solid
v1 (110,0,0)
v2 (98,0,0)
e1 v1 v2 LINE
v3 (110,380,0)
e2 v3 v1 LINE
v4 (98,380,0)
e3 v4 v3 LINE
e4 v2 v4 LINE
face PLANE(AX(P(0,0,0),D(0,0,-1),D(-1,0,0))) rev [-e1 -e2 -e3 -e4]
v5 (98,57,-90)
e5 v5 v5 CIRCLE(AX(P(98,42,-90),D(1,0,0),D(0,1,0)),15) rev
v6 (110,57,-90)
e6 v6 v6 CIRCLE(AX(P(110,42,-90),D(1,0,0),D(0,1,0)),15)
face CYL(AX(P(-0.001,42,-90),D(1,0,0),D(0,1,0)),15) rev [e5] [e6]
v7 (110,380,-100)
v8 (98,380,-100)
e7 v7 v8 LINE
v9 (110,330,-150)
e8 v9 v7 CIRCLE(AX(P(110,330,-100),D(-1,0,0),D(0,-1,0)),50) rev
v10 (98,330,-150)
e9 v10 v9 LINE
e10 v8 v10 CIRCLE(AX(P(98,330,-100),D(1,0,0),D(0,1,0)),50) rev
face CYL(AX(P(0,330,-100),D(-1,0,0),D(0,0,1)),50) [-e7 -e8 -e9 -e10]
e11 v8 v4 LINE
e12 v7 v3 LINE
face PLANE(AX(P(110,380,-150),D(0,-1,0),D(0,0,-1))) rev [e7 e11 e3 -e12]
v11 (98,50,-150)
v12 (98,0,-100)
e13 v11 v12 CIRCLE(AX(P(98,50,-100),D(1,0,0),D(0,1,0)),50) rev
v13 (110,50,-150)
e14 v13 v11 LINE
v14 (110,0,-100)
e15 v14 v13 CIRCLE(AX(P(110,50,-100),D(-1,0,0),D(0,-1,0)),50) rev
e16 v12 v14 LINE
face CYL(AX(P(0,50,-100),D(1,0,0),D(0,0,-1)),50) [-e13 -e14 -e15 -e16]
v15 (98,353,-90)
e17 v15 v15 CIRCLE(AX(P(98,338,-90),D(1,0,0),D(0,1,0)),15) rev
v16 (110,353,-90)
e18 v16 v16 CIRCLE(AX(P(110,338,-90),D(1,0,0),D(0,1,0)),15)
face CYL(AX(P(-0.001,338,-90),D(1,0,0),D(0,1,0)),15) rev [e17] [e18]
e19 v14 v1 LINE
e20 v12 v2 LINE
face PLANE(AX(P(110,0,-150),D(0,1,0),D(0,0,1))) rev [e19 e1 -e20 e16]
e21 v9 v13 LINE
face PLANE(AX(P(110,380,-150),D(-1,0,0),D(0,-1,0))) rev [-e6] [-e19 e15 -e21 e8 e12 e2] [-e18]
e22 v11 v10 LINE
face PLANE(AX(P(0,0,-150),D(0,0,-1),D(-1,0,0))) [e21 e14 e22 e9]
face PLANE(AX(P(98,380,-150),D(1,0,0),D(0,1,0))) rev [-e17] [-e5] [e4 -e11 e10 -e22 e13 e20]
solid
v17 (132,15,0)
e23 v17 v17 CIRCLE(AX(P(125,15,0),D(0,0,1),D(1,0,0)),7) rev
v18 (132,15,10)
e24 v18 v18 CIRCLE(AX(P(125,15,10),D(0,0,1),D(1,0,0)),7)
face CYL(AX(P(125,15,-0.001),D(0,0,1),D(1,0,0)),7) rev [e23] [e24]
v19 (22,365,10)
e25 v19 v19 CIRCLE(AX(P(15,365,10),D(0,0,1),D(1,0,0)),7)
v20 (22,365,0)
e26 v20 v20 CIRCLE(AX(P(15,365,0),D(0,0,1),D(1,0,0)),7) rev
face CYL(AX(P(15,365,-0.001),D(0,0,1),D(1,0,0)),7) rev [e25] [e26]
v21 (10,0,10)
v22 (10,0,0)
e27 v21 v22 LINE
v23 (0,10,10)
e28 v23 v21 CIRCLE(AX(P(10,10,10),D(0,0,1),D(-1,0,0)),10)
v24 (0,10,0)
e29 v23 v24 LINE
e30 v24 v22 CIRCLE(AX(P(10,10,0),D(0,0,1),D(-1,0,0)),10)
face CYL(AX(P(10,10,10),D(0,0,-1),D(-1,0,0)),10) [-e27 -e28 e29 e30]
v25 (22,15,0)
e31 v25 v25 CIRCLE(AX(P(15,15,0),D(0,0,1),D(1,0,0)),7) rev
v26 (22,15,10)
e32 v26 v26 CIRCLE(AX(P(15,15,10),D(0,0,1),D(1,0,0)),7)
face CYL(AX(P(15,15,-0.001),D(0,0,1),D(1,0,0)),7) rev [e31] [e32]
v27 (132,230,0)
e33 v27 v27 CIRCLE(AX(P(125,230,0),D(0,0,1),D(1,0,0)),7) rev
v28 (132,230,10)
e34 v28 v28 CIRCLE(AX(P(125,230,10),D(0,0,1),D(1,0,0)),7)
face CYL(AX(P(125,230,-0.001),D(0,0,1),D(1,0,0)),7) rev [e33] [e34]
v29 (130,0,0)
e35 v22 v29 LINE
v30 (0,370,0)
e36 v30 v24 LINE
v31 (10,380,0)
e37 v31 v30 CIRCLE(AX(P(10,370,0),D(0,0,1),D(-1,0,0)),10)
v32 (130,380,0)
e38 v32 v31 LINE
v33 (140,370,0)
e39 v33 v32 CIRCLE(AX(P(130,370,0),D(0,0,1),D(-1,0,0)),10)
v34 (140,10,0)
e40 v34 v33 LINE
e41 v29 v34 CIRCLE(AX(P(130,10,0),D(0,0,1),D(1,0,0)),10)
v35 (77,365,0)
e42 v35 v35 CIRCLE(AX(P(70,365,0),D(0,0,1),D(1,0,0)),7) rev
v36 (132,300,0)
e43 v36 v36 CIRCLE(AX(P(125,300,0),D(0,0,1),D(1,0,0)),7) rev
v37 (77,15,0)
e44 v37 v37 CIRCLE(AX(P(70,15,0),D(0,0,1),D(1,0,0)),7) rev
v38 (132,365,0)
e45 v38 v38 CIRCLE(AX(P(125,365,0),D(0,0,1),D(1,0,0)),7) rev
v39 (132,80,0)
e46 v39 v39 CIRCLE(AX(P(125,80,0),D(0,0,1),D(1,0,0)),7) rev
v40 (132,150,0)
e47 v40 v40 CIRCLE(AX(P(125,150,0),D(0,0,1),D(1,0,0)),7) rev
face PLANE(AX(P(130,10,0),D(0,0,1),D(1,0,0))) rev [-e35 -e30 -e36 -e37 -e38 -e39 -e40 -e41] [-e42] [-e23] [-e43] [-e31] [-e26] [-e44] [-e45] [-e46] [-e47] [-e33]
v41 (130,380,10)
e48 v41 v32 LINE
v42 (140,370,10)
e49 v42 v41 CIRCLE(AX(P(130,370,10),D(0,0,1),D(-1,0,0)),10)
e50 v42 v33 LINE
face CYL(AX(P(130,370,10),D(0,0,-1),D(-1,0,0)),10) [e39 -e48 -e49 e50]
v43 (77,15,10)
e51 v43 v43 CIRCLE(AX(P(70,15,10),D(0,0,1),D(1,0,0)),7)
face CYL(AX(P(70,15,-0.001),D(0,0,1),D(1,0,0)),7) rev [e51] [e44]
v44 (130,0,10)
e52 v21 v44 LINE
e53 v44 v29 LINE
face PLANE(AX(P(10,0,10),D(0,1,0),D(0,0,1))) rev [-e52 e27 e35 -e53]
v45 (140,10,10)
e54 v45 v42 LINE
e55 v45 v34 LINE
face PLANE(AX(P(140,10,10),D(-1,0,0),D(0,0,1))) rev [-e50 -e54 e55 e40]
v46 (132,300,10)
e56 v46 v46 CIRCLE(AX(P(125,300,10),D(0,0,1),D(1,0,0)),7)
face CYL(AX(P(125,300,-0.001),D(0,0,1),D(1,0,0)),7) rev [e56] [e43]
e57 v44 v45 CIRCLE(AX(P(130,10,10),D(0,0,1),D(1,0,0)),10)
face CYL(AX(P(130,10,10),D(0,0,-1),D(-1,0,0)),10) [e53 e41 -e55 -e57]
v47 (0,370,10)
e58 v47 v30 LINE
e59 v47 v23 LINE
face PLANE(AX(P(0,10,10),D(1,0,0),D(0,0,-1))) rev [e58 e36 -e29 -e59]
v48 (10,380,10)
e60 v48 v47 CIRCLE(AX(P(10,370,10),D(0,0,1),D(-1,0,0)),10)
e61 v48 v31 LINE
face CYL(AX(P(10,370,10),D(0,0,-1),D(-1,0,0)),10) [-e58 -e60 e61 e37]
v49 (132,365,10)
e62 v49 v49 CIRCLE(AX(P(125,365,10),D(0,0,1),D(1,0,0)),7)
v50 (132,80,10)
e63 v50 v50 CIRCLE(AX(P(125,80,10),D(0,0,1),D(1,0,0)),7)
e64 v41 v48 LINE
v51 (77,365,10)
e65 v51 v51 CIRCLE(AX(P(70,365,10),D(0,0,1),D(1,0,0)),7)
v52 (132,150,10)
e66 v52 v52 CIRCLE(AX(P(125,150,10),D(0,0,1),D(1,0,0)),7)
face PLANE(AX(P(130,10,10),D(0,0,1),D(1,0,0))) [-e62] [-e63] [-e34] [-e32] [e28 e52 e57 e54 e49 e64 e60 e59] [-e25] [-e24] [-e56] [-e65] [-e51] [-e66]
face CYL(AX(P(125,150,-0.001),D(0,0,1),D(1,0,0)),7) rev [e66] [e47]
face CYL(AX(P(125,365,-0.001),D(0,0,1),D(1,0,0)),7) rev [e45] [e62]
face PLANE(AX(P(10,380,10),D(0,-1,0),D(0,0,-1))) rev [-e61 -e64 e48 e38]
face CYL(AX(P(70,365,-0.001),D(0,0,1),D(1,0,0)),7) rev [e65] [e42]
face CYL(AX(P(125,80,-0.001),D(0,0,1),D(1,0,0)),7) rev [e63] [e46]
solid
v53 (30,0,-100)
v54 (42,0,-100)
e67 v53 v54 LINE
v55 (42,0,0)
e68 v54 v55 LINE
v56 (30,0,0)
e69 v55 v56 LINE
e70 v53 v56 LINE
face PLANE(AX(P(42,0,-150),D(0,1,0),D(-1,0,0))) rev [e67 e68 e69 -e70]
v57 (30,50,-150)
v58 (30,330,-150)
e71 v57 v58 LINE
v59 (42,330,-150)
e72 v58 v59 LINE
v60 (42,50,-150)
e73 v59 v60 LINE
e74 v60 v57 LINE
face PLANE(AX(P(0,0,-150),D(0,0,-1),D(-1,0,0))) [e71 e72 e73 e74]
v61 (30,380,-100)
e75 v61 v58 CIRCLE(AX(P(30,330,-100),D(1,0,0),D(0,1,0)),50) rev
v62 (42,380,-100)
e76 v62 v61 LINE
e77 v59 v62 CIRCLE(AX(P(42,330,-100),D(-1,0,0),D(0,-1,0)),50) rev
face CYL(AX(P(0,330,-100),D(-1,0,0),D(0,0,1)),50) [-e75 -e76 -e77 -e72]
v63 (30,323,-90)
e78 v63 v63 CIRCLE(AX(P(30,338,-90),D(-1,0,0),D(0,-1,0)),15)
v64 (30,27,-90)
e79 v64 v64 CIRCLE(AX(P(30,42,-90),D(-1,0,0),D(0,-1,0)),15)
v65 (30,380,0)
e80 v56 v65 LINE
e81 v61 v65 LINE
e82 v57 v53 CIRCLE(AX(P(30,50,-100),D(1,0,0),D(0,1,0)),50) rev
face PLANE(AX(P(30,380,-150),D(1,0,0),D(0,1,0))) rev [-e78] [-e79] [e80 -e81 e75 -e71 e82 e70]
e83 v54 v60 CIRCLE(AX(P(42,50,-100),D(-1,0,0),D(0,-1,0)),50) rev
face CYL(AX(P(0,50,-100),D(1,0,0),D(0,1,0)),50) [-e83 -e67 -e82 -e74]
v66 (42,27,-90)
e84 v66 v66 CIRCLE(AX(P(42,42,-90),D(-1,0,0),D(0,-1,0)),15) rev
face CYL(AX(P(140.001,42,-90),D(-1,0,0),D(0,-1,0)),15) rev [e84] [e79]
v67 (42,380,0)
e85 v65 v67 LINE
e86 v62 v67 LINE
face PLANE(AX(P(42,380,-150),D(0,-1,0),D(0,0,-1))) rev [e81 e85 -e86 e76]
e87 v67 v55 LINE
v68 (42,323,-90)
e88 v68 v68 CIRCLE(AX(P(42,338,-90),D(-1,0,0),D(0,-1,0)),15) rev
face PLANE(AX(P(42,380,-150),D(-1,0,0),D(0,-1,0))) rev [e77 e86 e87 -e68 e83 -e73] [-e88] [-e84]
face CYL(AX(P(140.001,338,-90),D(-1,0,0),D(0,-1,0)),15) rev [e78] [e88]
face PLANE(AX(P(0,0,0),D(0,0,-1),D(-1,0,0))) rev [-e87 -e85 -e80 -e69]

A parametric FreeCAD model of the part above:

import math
import FreeCAD as App
import Part
import Sketcher
from FreeCAD import Vector


def edges_at(feature, points):
    """Names of the edges that pass closest to the given points."""
    edges = feature.Shape.Edges
    near = lambda p: min(range(len(edges)), key=lambda i: edges[i].distToShape(Part.Vertex(*p))[0])
    return sorted({f"Edge{near(p) + 1}" for p in points})

doc = App.newDocument("Part")
body = doc.addObject("PartDesign::Body", "Body")

# Sketch on XY plane
sketch1 = body.newObject("Sketcher::SketchObject", "Sketch")
sketch1.AttachmentSupport = (doc.getObject("XY_Plane"), [""])
sketch1.MapMode = "FlatFace"
sketch1.addGeometry([
    Part.LineSegment(Vector(10, 0, 0), Vector(130, 0, 0)),  # 0
    Part.ArcOfCircle(Part.Circle(Vector(130, 10, 0), Vector(0, 0, 1), 10), math.radians(-90), math.radians(0)),  # 1
    Part.LineSegment(Vector(140, 10, 0), Vector(140, 370, 0)),  # 2
    Part.ArcOfCircle(Part.Circle(Vector(130, 370, 0), Vector(0, 0, 1), 10), math.radians(0), math.radians(90)),  # 3
    Part.LineSegment(Vector(130, 380, 0), Vector(10, 380, 0)),  # 4
    Part.ArcOfCircle(Part.Circle(Vector(10, 370, 0), Vector(0, 0, 1), 10), math.radians(90), math.radians(180)),  # 5
    Part.LineSegment(Vector(0, 370, 0), Vector(0, 10, 0)),  # 6
    Part.ArcOfCircle(Part.Circle(Vector(10, 10, 0), Vector(0, 0, 1), 10), math.radians(180), math.radians(270)),  # 7
], False)
sketch1.addConstraint([
    Sketcher.Constraint("Tangent", 0, 2, 1, 1),
    Sketcher.Constraint("Tangent", 1, 2, 2, 1),
    Sketcher.Constraint("Tangent", 2, 2, 3, 1),
    Sketcher.Constraint("Tangent", 3, 2, 4, 1),
    Sketcher.Constraint("Tangent", 4, 2, 5, 1),
    Sketcher.Constraint("Tangent", 5, 2, 6, 1),
    Sketcher.Constraint("Tangent", 6, 2, 7, 1),
    Sketcher.Constraint("Tangent", 7, 2, 0, 1),
    Sketcher.Constraint("Horizontal", 0),
    Sketcher.Constraint("Vertical", 2),
    Sketcher.Constraint("Horizontal", 4),
    Sketcher.Constraint("Vertical", 6),
    Sketcher.Constraint("Equal", 1, 3),
    Sketcher.Constraint("Equal", 3, 5),
    Sketcher.Constraint("Equal", 5, 7),
    Sketcher.Constraint("PointOnObject", 0, 2, -1),
    Sketcher.Constraint("PointOnObject", 5, 2, -2),
    Sketcher.Constraint("Radius", 1, 10.0),
    Sketcher.Constraint("DistanceX", 0, 1, 0, 2, 120.0),
    Sketcher.Constraint("DistanceY", 2, 1, 2, 2, 360.0),
])
pad1 = body.newObject("PartDesign::Pad", "Pad")
pad1.Profile = sketch1
pad1.Length = 10

# Sketch on XY plane
sketch2 = body.newObject("Sketcher::SketchObject", "Sketch001")
sketch2.AttachmentSupport = (doc.getObject("XY_Plane"), [""])
sketch2.MapMode = "FlatFace"
sketch2.AttachmentOffset = App.Placement(Vector(0, 0, 10), App.Rotation())
sketch2.addGeometry(Part.Circle(Vector(15, 365, 0), Vector(0, 0, 1), 7), False)
sketch2.addConstraint([
    Sketcher.Constraint("Diameter", 0, 14.0),
    Sketcher.Constraint("DistanceX", -1, 1, 0, 3, 15.0),
    Sketcher.Constraint("DistanceY", -1, 1, 0, 3, 365.0),
])
pocket1 = body.newObject("PartDesign::Pocket", "Pocket")
pocket1.Profile = sketch2
pocket1.Type = "UpToFirst"

# Sketch on XY plane
sketch3 = body.newObject("Sketcher::SketchObject", "Sketch002")
sketch3.AttachmentSupport = (doc.getObject("XY_Plane"), [""])
sketch3.MapMode = "FlatFace"
sketch3.AttachmentOffset = App.Placement(Vector(0, 0, 10), App.Rotation())
sketch3.addGeometry(Part.Circle(Vector(125, 365, 0), Vector(0, 0, 1), 7), False)
sketch3.addConstraint([
    Sketcher.Constraint("Diameter", 0, 14.0),
    Sketcher.Constraint("DistanceX", -1, 1, 0, 3, 125.0),
    Sketcher.Constraint("DistanceY", -1, 1, 0, 3, 365.0),
])
pocket2 = body.newObject("PartDesign::Pocket", "Pocket001")
pocket2.Profile = sketch3
pocket2.Type = "UpToFirst"

# Sketch on XY plane
sketch4 = body.newObject("Sketcher::SketchObject", "Sketch003")
sketch4.AttachmentSupport = (doc.getObject("XY_Plane"), [""])
sketch4.MapMode = "FlatFace"
sketch4.AttachmentOffset = App.Placement(Vector(0, 0, 10), App.Rotation())
sketch4.addGeometry(Part.Circle(Vector(15, 15, 0), Vector(0, 0, 1), 7), False)
sketch4.addConstraint([
    Sketcher.Constraint("Diameter", 0, 14.0),
    Sketcher.Constraint("DistanceX", -1, 1, 0, 3, 15.0),
    Sketcher.Constraint("DistanceY", -1, 1, 0, 3, 15.0),
])
pocket3 = body.newObject("PartDesign::Pocket", "Pocket002")
pocket3.Profile = sketch4
pocket3.Type = "UpToFirst"

# Sketch on XY plane
sketch5 = body.newObject("Sketcher::SketchObject", "Sketch004")
sketch5.AttachmentSupport = (doc.getObject("XY_Plane"), [""])
sketch5.MapMode = "FlatFace"
sketch5.AttachmentOffset = App.Placement(Vector(0, 0, 10), App.Rotation())
sketch5.addGeometry(Part.Circle(Vector(125, 15, 0), Vector(0, 0, 1), 7), False)
sketch5.addConstraint([
    Sketcher.Constraint("Diameter", 0, 14.0),
    Sketcher.Constraint("DistanceX", -1, 1, 0, 3, 125.0),
    Sketcher.Constraint("DistanceY", -1, 1, 0, 3, 15.0),
])
pocket4 = body.newObject("PartDesign::Pocket", "Pocket003")
pocket4.Profile = sketch5
pocket4.Type = "UpToFirst"

# Sketch on XY plane
sketch6 = body.newObject("Sketcher::SketchObject", "Sketch005")
sketch6.AttachmentSupport = (doc.getObject("XY_Plane"), [""])
sketch6.MapMode = "FlatFace"
sketch6.AttachmentOffset = App.Placement(Vector(0, 0, 10), App.Rotation())
sketch6.addGeometry(Part.Circle(Vector(70, 365, 0), Vector(0, 0, 1), 7), False)
sketch6.addConstraint([
    Sketcher.Constraint("Diameter", 0, 14.0),
    Sketcher.Constraint("DistanceX", -1, 1, 0, 3, 70.0),
    Sketcher.Constraint("DistanceY", -1, 1, 0, 3, 365.0),
])
pocket5 = body.newObject("PartDesign::Pocket", "Pocket004")
pocket5.Profile = sketch6
pocket5.Type = "UpToFirst"

# Sketch on XY plane
sketch7 = body.newObject("Sketcher::SketchObject", "Sketch006")
sketch7.AttachmentSupport = (doc.getObject("XY_Plane"), [""])
sketch7.MapMode = "FlatFace"
sketch7.AttachmentOffset = App.Placement(Vector(0, 0, 10), App.Rotation())
sketch7.addGeometry(Part.Circle(Vector(70, 15, 0), Vector(0, 0, 1), 7), False)
sketch7.addConstraint([
    Sketcher.Constraint("Diameter", 0, 14.0),
    Sketcher.Constraint("DistanceX", -1, 1, 0, 3, 70.0),
    Sketcher.Constraint("DistanceY", -1, 1, 0, 3, 15.0),
])
pocket6 = body.newObject("PartDesign::Pocket", "Pocket005")
pocket6.Profile = sketch7
pocket6.Type = "UpToFirst"

# Sketch on XY plane
sketch8 = body.newObject("Sketcher::SketchObject", "Sketch007")
sketch8.AttachmentSupport = (doc.getObject("XY_Plane"), [""])
sketch8.MapMode = "FlatFace"
sketch8.AttachmentOffset = App.Placement(Vector(0, 0, 10), App.Rotation())
sketch8.addGeometry(Part.Circle(Vector(125, 300, 0), Vector(0, 0, 1), 7), False)
sketch8.addConstraint([
    Sketcher.Constraint("Diameter", 0, 14.0),
    Sketcher.Constraint("DistanceX", -1, 1, 0, 3, 125.0),
    Sketcher.Constraint("DistanceY", -1, 1, 0, 3, 300.0),
])
pocket7 = body.newObject("PartDesign::Pocket", "Pocket006")
pocket7.Profile = sketch8
pocket7.Type = "UpToFirst"

# Sketch on XY plane
sketch9 = body.newObject("Sketcher::SketchObject", "Sketch008")
sketch9.AttachmentSupport = (doc.getObject("XY_Plane"), [""])
sketch9.MapMode = "FlatFace"
sketch9.AttachmentOffset = App.Placement(Vector(0, 0, 10), App.Rotation())
sketch9.addGeometry(Part.Circle(Vector(125, 80, 0), Vector(0, 0, 1), 7), False)
sketch9.addConstraint([
    Sketcher.Constraint("Diameter", 0, 14.0),
    Sketcher.Constraint("DistanceX", -1, 1, 0, 3, 125.0),
    Sketcher.Constraint("DistanceY", -1, 1, 0, 3, 80.0),
])
pocket8 = body.newObject("PartDesign::Pocket", "Pocket007")
pocket8.Profile = sketch9
pocket8.Type = "UpToFirst"

# Sketch on XY plane
sketch10 = body.newObject("Sketcher::SketchObject", "Sketch009")
sketch10.AttachmentSupport = (doc.getObject("XY_Plane"), [""])
sketch10.MapMode = "FlatFace"
sketch10.AttachmentOffset = App.Placement(Vector(0, 0, 10), App.Rotation())
sketch10.addGeometry(Part.Circle(Vector(125, 230, 0), Vector(0, 0, 1), 7), False)
sketch10.addConstraint([
    Sketcher.Constraint("Diameter", 0, 14.0),
    Sketcher.Constraint("DistanceX", -1, 1, 0, 3, 125.0),
    Sketcher.Constraint("DistanceY", -1, 1, 0, 3, 230.0),
])
pocket9 = body.newObject("PartDesign::Pocket", "Pocket008")
pocket9.Profile = sketch10
pocket9.Type = "UpToFirst"

# Sketch on XY plane
sketch11 = body.newObject("Sketcher::SketchObject", "Sketch010")
sketch11.AttachmentSupport = (doc.getObject("XY_Plane"), [""])
sketch11.MapMode = "FlatFace"
sketch11.AttachmentOffset = App.Placement(Vector(0, 0, 10), App.Rotation())
sketch11.addGeometry(Part.Circle(Vector(125, 150, 0), Vector(0, 0, 1), 7), False)
sketch11.addConstraint([
    Sketcher.Constraint("Diameter", 0, 14.0),
    Sketcher.Constraint("DistanceX", -1, 1, 0, 3, 125.0),
    Sketcher.Constraint("DistanceY", -1, 1, 0, 3, 150.0),
])
pocket10 = body.newObject("PartDesign::Pocket", "Pocket009")
pocket10.Profile = sketch11
pocket10.Type = "UpToFirst"
body2 = doc.addObject("PartDesign::Body", "Body001")

# Sketch on XY plane
sketch12 = body2.newObject("Sketcher::SketchObject", "Sketch011")
sketch12.AttachmentSupport = (doc.getObject("XY_Plane001"), [""])
sketch12.MapMode = "FlatFace"
sketch12.addGeometry([
    Part.LineSegment(Vector(110, 380, 0), Vector(110, 0, 0)),
    Part.LineSegment(Vector(110, 0, 0), Vector(98, 0, 0)),
    Part.LineSegment(Vector(98, 0, 0), Vector(98, 380, 0)),
    Part.LineSegment(Vector(98, 380, 0), Vector(110, 380, 0)),
], False)
sketch12.addConstraint([
    Sketcher.Constraint("Coincident", 0, 2, 1, 1),
    Sketcher.Constraint("Coincident", 1, 2, 2, 1),
    Sketcher.Constraint("Coincident", 2, 2, 3, 1),
    Sketcher.Constraint("Coincident", 3, 2, 0, 1),
    Sketcher.Constraint("Vertical", 0),
    Sketcher.Constraint("Horizontal", 1),
    Sketcher.Constraint("Vertical", 2),
    Sketcher.Constraint("Horizontal", 3),
    Sketcher.Constraint("PointOnObject", 0, 2, -1),
    Sketcher.Constraint("DistanceX", 1, 2, 1, 1, 12.0),
    Sketcher.Constraint("DistanceY", 0, 2, 0, 1, 380.0),
    Sketcher.Constraint("DistanceX", -1, 1, 0, 2, 110.0),
])
pad2 = body2.newObject("PartDesign::Pad", "Pad001")
pad2.Profile = sketch12
pad2.Length = 150
pad2.Reversed = True
doc.recompute()

fillet = body2.newObject("PartDesign::Fillet", "Fillet")
fillet.Base = (pad2, edges_at(pad2, [(104, 380, -150), (104, 0, -150)]))
fillet.Radius = 50

# Sketch on YZ plane
sketch13 = body2.newObject("Sketcher::SketchObject", "Sketch012")
sketch13.AttachmentSupport = (doc.getObject("YZ_Plane001"), [""])
sketch13.MapMode = "FlatFace"
sketch13.AttachmentOffset = App.Placement(Vector(0, 0, 110), App.Rotation())
sketch13.addGeometry([
    Part.Circle(Vector(338, -90, 0), Vector(0, 0, 1), 15),
    Part.Circle(Vector(42, -90, 0), Vector(0, 0, 1), 15),
], False)
sketch13.addConstraint([
    Sketcher.Constraint("Equal", 0, 1),
    Sketcher.Constraint("Horizontal", 0, 3, 1, 3),
    Sketcher.Constraint("Diameter", 0, 30.0),
    Sketcher.Constraint("DistanceX", -1, 1, 0, 3, 338.0),
    Sketcher.Constraint("DistanceY", 0, 3, -1, 1, 90.0),
    Sketcher.Constraint("DistanceX", -1, 1, 1, 3, 42.0),
])
pocket11 = body2.newObject("PartDesign::Pocket", "Pocket010")
pocket11.Profile = sketch13
pocket11.Length = 12
body3 = doc.addObject("PartDesign::Body", "Body002")

# Sketch on XY plane
sketch14 = body3.newObject("Sketcher::SketchObject", "Sketch013")
sketch14.AttachmentSupport = (doc.getObject("XY_Plane002"), [""])
sketch14.MapMode = "FlatFace"
sketch14.addGeometry([
    Part.LineSegment(Vector(42, 380, 0), Vector(42, 0, 0)),
    Part.LineSegment(Vector(42, 0, 0), Vector(30, 0, 0)),
    Part.LineSegment(Vector(30, 0, 0), Vector(30, 380, 0)),
    Part.LineSegment(Vector(30, 380, 0), Vector(42, 380, 0)),
], False)
sketch14.addConstraint([
    Sketcher.Constraint("Coincident", 0, 2, 1, 1),
    Sketcher.Constraint("Coincident", 1, 2, 2, 1),
    Sketcher.Constraint("Coincident", 2, 2, 3, 1),
    Sketcher.Constraint("Coincident", 3, 2, 0, 1),
    Sketcher.Constraint("Vertical", 0),
    Sketcher.Constraint("Horizontal", 1),
    Sketcher.Constraint("Vertical", 2),
    Sketcher.Constraint("Horizontal", 3),
    Sketcher.Constraint("PointOnObject", 0, 2, -1),
    Sketcher.Constraint("DistanceX", 1, 2, 1, 1, 12.0),
    Sketcher.Constraint("DistanceY", 0, 2, 0, 1, 380.0),
    Sketcher.Constraint("DistanceX", -1, 1, 0, 2, 42.0),
])
pad3 = body3.newObject("PartDesign::Pad", "Pad002")
pad3.Profile = sketch14
pad3.Length = 150
pad3.Reversed = True
doc.recompute()

fillet2 = body3.newObject("PartDesign::Fillet", "Fillet001")
fillet2.Base = (pad3, edges_at(pad3, [(36, 380, -150), (36, 0, -150)]))
fillet2.Radius = 50

# Sketch on YZ plane
sketch15 = body3.newObject("Sketcher::SketchObject", "Sketch014")
sketch15.AttachmentSupport = (doc.getObject("YZ_Plane002"), [""])
sketch15.MapMode = "FlatFace"
sketch15.AttachmentOffset = App.Placement(Vector(0, 0, 30), App.Rotation())
sketch15.addGeometry([
    Part.Circle(Vector(338, -90, 0), Vector(0, 0, 1), 15),
    Part.Circle(Vector(42, -90, 0), Vector(0, 0, 1), 15),
], False)
sketch15.addConstraint([
    Sketcher.Constraint("Equal", 0, 1),
    Sketcher.Constraint("Horizontal", 0, 3, 1, 3),
    Sketcher.Constraint("Diameter", 0, 30.0),
    Sketcher.Constraint("DistanceX", -1, 1, 0, 3, 338.0),
    Sketcher.Constraint("DistanceY", 0, 3, -1, 1, 90.0),
    Sketcher.Constraint("DistanceX", -1, 1, 1, 3, 42.0),
])
pocket12 = body3.newObject("PartDesign::Pocket", "Pocket011")
pocket12.Profile = sketch15
pocket12.Length = 12
pocket12.Reversed = True

doc.recompute()
